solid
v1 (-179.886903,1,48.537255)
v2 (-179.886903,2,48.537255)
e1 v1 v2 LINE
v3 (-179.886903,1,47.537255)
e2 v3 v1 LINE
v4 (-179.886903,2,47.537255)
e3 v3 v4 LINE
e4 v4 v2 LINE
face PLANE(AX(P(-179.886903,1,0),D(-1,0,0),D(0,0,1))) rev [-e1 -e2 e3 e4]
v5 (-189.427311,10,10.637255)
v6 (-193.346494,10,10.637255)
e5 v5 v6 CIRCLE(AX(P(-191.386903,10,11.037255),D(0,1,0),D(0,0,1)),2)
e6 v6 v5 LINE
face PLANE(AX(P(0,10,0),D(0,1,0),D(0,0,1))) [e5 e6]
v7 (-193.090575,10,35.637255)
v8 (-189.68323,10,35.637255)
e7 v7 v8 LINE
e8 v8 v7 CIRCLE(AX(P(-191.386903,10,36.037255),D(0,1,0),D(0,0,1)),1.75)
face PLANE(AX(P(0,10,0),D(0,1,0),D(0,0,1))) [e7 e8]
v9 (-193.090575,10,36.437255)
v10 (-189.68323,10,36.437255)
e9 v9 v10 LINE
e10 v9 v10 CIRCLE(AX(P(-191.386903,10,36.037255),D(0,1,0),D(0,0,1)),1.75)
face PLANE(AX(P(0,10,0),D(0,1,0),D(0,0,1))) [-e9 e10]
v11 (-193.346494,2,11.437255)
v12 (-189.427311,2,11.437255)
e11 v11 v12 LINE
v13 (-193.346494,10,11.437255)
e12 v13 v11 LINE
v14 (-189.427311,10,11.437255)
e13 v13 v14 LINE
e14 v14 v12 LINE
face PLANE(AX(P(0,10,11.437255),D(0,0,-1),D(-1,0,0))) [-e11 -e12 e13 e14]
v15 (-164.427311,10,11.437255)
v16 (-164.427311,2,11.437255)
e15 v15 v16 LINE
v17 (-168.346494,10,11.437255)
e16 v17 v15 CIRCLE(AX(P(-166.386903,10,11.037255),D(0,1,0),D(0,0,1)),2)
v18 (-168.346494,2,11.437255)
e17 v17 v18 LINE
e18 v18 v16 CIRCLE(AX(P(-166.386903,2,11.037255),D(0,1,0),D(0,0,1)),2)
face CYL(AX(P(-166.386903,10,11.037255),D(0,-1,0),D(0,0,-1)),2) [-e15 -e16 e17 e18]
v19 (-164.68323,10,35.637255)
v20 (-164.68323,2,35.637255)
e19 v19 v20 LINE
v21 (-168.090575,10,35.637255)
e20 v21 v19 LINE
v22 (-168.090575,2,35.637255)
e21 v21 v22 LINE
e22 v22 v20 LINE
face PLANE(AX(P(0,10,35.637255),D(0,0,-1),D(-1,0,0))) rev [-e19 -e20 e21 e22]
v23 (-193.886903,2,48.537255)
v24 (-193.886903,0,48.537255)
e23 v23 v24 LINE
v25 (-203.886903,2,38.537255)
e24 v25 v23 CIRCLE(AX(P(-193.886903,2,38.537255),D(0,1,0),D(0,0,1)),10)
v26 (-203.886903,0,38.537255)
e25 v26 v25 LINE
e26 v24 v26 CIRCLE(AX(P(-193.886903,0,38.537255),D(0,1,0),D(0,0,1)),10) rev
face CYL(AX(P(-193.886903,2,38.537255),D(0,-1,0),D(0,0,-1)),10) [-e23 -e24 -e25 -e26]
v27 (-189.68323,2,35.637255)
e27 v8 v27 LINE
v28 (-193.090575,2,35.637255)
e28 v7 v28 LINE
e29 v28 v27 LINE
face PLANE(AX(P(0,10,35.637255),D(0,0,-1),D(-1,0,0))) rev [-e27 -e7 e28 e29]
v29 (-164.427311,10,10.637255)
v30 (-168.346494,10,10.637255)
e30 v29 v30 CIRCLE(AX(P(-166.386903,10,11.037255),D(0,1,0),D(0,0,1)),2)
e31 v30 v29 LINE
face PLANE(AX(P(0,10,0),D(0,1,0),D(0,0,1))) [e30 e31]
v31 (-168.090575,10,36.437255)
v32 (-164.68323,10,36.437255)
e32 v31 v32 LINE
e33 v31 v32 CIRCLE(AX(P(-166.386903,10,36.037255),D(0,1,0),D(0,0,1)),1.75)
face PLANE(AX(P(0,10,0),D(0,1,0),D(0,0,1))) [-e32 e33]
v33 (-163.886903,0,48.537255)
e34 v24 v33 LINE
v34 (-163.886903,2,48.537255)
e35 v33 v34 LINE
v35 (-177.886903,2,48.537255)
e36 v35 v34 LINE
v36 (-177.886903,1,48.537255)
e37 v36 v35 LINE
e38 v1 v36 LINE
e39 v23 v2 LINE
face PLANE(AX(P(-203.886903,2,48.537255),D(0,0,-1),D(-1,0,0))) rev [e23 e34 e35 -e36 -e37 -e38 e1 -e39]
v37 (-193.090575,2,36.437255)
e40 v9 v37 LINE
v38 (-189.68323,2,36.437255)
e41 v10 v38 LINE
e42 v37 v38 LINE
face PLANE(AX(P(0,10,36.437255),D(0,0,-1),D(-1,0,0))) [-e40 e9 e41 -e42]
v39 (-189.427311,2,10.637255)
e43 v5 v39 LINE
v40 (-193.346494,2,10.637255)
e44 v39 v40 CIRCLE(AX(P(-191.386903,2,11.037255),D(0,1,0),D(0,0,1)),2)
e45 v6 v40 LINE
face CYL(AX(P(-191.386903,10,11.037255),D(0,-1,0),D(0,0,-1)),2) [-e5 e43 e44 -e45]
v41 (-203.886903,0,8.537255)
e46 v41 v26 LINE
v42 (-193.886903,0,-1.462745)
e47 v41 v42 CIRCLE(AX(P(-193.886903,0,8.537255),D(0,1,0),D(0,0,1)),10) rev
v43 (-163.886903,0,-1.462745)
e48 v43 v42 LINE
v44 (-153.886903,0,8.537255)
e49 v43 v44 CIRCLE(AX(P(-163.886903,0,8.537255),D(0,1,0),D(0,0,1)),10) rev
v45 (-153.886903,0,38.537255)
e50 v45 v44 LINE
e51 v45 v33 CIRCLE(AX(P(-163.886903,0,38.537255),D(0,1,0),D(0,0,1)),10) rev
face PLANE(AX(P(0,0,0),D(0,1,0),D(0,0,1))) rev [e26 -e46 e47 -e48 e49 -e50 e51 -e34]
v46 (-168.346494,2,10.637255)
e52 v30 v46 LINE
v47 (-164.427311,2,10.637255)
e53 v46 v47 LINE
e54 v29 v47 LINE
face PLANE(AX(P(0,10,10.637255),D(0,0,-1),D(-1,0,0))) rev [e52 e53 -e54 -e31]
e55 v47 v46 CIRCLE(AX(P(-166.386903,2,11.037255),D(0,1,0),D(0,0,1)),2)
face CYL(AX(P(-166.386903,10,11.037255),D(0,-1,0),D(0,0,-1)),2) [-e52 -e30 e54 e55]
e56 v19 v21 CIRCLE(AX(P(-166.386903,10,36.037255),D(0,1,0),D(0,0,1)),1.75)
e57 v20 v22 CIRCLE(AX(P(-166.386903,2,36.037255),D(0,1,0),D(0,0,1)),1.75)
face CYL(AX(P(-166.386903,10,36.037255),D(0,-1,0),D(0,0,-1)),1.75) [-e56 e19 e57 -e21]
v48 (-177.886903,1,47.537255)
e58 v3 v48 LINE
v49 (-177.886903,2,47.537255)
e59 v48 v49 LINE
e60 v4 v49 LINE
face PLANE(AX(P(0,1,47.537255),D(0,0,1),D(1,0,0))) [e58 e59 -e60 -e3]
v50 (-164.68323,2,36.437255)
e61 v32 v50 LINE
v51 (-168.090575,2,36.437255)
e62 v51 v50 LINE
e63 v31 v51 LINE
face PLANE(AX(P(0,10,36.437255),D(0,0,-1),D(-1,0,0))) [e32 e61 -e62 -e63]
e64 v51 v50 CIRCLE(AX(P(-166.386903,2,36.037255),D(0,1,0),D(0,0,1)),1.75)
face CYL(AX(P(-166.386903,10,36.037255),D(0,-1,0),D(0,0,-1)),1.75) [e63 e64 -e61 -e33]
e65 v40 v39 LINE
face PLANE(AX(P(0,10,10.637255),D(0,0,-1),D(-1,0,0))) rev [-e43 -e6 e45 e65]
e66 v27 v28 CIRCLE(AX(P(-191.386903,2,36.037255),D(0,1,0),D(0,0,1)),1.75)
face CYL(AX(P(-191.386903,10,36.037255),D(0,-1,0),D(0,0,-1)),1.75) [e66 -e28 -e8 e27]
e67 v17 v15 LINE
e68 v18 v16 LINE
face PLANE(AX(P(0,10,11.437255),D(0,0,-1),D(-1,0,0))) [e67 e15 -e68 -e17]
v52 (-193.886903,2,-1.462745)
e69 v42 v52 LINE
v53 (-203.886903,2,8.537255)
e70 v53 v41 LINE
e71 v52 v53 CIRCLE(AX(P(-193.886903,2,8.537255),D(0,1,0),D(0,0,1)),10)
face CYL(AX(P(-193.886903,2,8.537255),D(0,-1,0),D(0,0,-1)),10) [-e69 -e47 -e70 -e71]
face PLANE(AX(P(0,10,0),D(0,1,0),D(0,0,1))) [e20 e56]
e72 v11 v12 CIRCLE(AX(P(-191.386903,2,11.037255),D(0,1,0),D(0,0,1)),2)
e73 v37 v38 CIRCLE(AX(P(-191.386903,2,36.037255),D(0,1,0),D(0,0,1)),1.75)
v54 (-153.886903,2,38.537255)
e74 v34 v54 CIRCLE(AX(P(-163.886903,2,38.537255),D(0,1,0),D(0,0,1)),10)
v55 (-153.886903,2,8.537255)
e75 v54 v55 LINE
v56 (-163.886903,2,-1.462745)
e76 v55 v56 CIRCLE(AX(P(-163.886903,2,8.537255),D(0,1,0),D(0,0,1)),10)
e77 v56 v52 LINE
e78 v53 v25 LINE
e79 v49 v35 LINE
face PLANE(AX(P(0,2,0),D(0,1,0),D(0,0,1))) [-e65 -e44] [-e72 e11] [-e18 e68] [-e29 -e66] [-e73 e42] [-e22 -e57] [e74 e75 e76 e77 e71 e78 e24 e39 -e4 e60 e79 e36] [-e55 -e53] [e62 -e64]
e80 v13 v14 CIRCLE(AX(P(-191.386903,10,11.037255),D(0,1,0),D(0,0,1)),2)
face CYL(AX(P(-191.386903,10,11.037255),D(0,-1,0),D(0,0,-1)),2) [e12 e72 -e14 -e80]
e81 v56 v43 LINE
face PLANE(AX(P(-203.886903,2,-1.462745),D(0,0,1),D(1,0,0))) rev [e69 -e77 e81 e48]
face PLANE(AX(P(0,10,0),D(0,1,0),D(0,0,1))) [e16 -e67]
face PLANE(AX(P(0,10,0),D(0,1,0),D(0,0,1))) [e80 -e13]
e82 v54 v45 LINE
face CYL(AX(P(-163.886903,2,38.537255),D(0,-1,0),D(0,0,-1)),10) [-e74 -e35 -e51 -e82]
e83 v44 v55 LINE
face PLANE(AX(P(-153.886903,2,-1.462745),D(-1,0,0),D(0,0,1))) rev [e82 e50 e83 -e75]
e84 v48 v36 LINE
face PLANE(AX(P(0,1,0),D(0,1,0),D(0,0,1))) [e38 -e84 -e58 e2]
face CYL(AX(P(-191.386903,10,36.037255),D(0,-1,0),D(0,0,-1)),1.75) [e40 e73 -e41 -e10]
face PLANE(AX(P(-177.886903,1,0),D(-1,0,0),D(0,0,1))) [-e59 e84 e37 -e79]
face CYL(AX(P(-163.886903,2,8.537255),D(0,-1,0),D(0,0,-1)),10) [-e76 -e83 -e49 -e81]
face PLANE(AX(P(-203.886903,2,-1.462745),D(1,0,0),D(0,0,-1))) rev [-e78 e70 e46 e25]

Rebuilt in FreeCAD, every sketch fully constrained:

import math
import FreeCAD as App
import Part
import Sketcher
from FreeCAD import Vector


def edges_at(feature, points):
    """Names of the edges that pass closest to the given points."""
    edges = feature.Shape.Edges
    near = lambda p: min(range(len(edges)), key=lambda i: edges[i].distToShape(Part.Vertex(*p))[0])
    return sorted({f"Edge{near(p) + 1}" for p in points})

doc = App.newDocument("Part")
body = doc.addObject("PartDesign::Body", "Body")

sketch1 = body.newObject("Sketcher::SketchObject", "Sketch")
sketch1.AttachmentSupport = (doc.getObject("XZ_Plane"), [""])
sketch1.MapMode = "FlatFace"
sketch1.addGeometry([
    Part.LineSegment(Vector(-204, -1, 0), Vector(-204, 49, 0)),
    Part.LineSegment(Vector(-204, 49, 0), Vector(-154, 49, 0)),
    Part.LineSegment(Vector(-154, 49, 0), Vector(-154, -1, 0)),
    Part.LineSegment(Vector(-154, -1, 0), Vector(-204, -1, 0)),
], False)
sketch1.addConstraint([
    Sketcher.Constraint("Coincident", 0, 2, 1, 1),
    Sketcher.Constraint("Coincident", 1, 2, 2, 1),
    Sketcher.Constraint("Coincident", 2, 2, 3, 1),
    Sketcher.Constraint("Coincident", 3, 2, 0, 1),
    Sketcher.Constraint("Vertical", 0),
    Sketcher.Constraint("Horizontal", 1),
    Sketcher.Constraint("Vertical", 2),
    Sketcher.Constraint("Horizontal", 3),
    Sketcher.Constraint("Equal", 3, 0),
    Sketcher.Constraint("DistanceX", 1, 1, 1, 2, 50.0),
    Sketcher.Constraint("DistanceX", 0, 2, -1, 1, 203.886903),
    Sketcher.Constraint("DistanceY", -1, 1, 0, 2, 48.537255),
])
pad1 = body.newObject("PartDesign::Pad", "Pad")
pad1.Profile = sketch1
pad1.Length = 2
pad1.Reversed = True

sketch2 = body.newObject("Sketcher::SketchObject", "Sketch001")
sketch2.AttachmentSupport = (doc.getObject("XZ_Plane"), [""])
sketch2.MapMode = "FlatFace"
sketch2.AttachmentOffset = App.Placement(Vector(0, 0, -2), App.Rotation())
sketch2.addGeometry([
    Part.LineSegment(Vector(-189.7, 36.4, 0), Vector(-193.1, 36.4, 0)),
    Part.ArcOfCircle(Part.Circle(Vector(-191.4, 36, 0), Vector(0, 0, 1), 1.8), math.radians(13), math.radians(167)),
    Part.LineSegment(Vector(-193.1, 35.6, 0), Vector(-189.7, 35.6, 0)),
    Part.ArcOfCircle(Part.Circle(Vector(-191.4, 36, 0), Vector(0, 0, 1), 1.8), math.radians(-167), math.radians(-13)),
    Part.LineSegment(Vector(-168.1, 35.6, 0), Vector(-164.7, 35.6, 0)),
    Part.ArcOfCircle(Part.Circle(Vector(-166.4, 36, 0), Vector(0, 0, 1), 1.8), math.radians(-167), math.radians(-13)),
    Part.LineSegment(Vector(-164.7, 36.4, 0), Vector(-168.1, 36.4, 0)),
    Part.ArcOfCircle(Part.Circle(Vector(-166.4, 36, 0), Vector(0, 0, 1), 1.8), math.radians(13), math.radians(167)),
    Part.LineSegment(Vector(-193.3, 10.6, 0), Vector(-189.4, 10.6, 0)),
    Part.ArcOfCircle(Part.Circle(Vector(-191.4, 11, 0), Vector(0, 0, 1), 2), math.radians(-168), math.radians(-12)),
    Part.LineSegment(Vector(-189.4, 11.4, 0), Vector(-193.3, 11.4, 0)),
    Part.ArcOfCircle(Part.Circle(Vector(-191.4, 11, 0), Vector(0, 0, 1), 2), math.radians(12), math.radians(168)),
    Part.LineSegment(Vector(-168.3, 10.6, 0), Vector(-164.4, 10.6, 0)),
    Part.ArcOfCircle(Part.Circle(Vector(-166.4, 11, 0), Vector(0, 0, 1), 2), math.radians(-168), math.radians(-12)),
    Part.LineSegment(Vector(-164.4, 11.4, 0), Vector(-168.3, 11.4, 0)),
    Part.ArcOfCircle(Part.Circle(Vector(-166.4, 11, 0), Vector(0, 0, 1), 2), math.radians(12), math.radians(168)),
], False)
sketch2.addConstraint([
    Sketcher.Constraint("Coincident", 0, 1, 1, 1),
    Sketcher.Constraint("Coincident", 1, 2, 0, 2),
    Sketcher.Constraint("Coincident", 2, 1, 3, 1),
    Sketcher.Constraint("Coincident", 3, 2, 2, 2),
    Sketcher.Constraint("Coincident", 4, 1, 5, 1),
    Sketcher.Constraint("Coincident", 5, 2, 4, 2),
    Sketcher.Constraint("Coincident", 6, 1, 7, 1),
    Sketcher.Constraint("Coincident", 7, 2, 6, 2),
    Sketcher.Constraint("Coincident", 8, 1, 9, 1),
    Sketcher.Constraint("Coincident", 9, 2, 8, 2),
    Sketcher.Constraint("Coincident", 10, 1, 11, 1),
    Sketcher.Constraint("Coincident", 11, 2, 10, 2),
    Sketcher.Constraint("Coincident", 12, 1, 13, 1),
    Sketcher.Constraint("Coincident", 13, 2, 12, 2),
    Sketcher.Constraint("Coincident", 14, 1, 15, 1),
    Sketcher.Constraint("Coincident", 15, 2, 14, 2),
    Sketcher.Constraint("Horizontal", 0),
    Sketcher.Constraint("Horizontal", 2),
    Sketcher.Constraint("Horizontal", 4),
    Sketcher.Constraint("Horizontal", 6),
    Sketcher.Constraint("Horizontal", 8),
    Sketcher.Constraint("Horizontal", 10),
    Sketcher.Constraint("Horizontal", 12),
    Sketcher.Constraint("Horizontal", 14),
    Sketcher.Constraint("Coincident", 3, 3, 1, 3),
    Sketcher.Constraint("Coincident", 7, 3, 5, 3),
    Sketcher.Constraint("Coincident", 11, 3, 9, 3),
    Sketcher.Constraint("Coincident", 15, 3, 13, 3),
    Sketcher.Constraint("Equal", 1, 3),
    Sketcher.Constraint("Equal", 3, 5),
    Sketcher.Constraint("Equal", 5, 7),
    Sketcher.Constraint("Equal", 9, 11),
    Sketcher.Constraint("Equal", 11, 13),
    Sketcher.Constraint("Equal", 13, 15),
    Sketcher.Constraint("Horizontal", 3, 3, 5, 3),
    Sketcher.Constraint("Horizontal", 11, 3, 13, 3),
    Sketcher.Constraint("Horizontal", 3, 2, 4, 1),
    Sketcher.Constraint("Horizontal", 1, 2, 6, 1),
    Sketcher.Constraint("Horizontal", 9, 2, 12, 1),
    Sketcher.Constraint("Horizontal", 11, 2, 14, 1),
    Sketcher.Constraint("Vertical", 3, 3, 9, 3),
    Sketcher.Constraint("Vertical", 7, 3, 13, 3),
    Sketcher.Constraint("Vertical", 1, 2, 2, 1),
    Sketcher.Constraint("Vertical", 9, 2, 10, 1),
    Sketcher.Constraint("Radius", 9, 2.0),
    Sketcher.Constraint("Radius", 1, 1.75),
    Sketcher.Constraint("DistanceX", 1, 3, 5, 3, 25.0),
    Sketcher.Constraint("DistanceY", 9, 3, 1, 3, 25.0),
    Sketcher.Constraint("DistanceY", 8, 1, 2, 1, 25.0),
    Sketcher.Constraint("DistanceY", 1, 3, 0, 1, 0.4),
    Sketcher.Constraint("DistanceX", 0, 1, -1, 1, 189.68323),
    Sketcher.Constraint("DistanceY", -1, 1, 1, 3, 36.037255),
])
pad2 = body.newObject("PartDesign::Pad", "Pad001")
pad2.Profile = sketch2
pad2.Length = 8
pad2.Reversed = True
doc.recompute()

fillet = body.newObject("PartDesign::Fillet", "Fillet")
fillet.Base = (pad2, edges_at(pad2, [
    (-203.887, 1, -1.463),
    (-153.887, 1, -1.463),
    (-153.887, 1, 48.537),
    (-203.887, 1, 48.537),
]))
fillet.Radius = 10

sketch3 = body.newObject("Sketcher::SketchObject", "Sketch002")
sketch3.AttachmentSupport = (doc.getObject("XZ_Plane"), [""])
sketch3.MapMode = "FlatFace"
sketch3.AttachmentOffset = App.Placement(Vector(0, 0, -2), App.Rotation())
sketch3.addGeometry([
    Part.LineSegment(Vector(-177.9, 47.5, 0), Vector(-179.9, 47.5, 0)),
    Part.LineSegment(Vector(-179.9, 47.5, 0), Vector(-179.9, 48.5, 0)),
    Part.LineSegment(Vector(-179.9, 48.5, 0), Vector(-177.9, 48.5, 0)),
    Part.LineSegment(Vector(-177.9, 48.5, 0), Vector(-177.9, 47.5, 0)),
], False)
sketch3.addConstraint([
    Sketcher.Constraint("Coincident", 0, 2, 1, 1),
    Sketcher.Constraint("Coincident", 1, 2, 2, 1),
    Sketcher.Constraint("Coincident", 2, 2, 3, 1),
    Sketcher.Constraint("Coincident", 3, 2, 0, 1),
    Sketcher.Constraint("Horizontal", 0),
    Sketcher.Constraint("Vertical", 1),
    Sketcher.Constraint("Horizontal", 2),
    Sketcher.Constraint("Vertical", 3),
    Sketcher.Constraint("DistanceX", 0, 2, 0, 1, 2.0),
    Sketcher.Constraint("DistanceY", 1, 1, 1, 2, 1.0),
    Sketcher.Constraint("DistanceX", 0, 2, -1, 1, 179.886903),
    Sketcher.Constraint("DistanceY", -1, 1, 0, 2, 47.537255),
])
pocket1 = body.newObject("PartDesign::Pocket", "Pocket")
pocket1.Profile = sketch3
pocket1.Length = 1
pocket1.Reversed = True

doc.recompute()
